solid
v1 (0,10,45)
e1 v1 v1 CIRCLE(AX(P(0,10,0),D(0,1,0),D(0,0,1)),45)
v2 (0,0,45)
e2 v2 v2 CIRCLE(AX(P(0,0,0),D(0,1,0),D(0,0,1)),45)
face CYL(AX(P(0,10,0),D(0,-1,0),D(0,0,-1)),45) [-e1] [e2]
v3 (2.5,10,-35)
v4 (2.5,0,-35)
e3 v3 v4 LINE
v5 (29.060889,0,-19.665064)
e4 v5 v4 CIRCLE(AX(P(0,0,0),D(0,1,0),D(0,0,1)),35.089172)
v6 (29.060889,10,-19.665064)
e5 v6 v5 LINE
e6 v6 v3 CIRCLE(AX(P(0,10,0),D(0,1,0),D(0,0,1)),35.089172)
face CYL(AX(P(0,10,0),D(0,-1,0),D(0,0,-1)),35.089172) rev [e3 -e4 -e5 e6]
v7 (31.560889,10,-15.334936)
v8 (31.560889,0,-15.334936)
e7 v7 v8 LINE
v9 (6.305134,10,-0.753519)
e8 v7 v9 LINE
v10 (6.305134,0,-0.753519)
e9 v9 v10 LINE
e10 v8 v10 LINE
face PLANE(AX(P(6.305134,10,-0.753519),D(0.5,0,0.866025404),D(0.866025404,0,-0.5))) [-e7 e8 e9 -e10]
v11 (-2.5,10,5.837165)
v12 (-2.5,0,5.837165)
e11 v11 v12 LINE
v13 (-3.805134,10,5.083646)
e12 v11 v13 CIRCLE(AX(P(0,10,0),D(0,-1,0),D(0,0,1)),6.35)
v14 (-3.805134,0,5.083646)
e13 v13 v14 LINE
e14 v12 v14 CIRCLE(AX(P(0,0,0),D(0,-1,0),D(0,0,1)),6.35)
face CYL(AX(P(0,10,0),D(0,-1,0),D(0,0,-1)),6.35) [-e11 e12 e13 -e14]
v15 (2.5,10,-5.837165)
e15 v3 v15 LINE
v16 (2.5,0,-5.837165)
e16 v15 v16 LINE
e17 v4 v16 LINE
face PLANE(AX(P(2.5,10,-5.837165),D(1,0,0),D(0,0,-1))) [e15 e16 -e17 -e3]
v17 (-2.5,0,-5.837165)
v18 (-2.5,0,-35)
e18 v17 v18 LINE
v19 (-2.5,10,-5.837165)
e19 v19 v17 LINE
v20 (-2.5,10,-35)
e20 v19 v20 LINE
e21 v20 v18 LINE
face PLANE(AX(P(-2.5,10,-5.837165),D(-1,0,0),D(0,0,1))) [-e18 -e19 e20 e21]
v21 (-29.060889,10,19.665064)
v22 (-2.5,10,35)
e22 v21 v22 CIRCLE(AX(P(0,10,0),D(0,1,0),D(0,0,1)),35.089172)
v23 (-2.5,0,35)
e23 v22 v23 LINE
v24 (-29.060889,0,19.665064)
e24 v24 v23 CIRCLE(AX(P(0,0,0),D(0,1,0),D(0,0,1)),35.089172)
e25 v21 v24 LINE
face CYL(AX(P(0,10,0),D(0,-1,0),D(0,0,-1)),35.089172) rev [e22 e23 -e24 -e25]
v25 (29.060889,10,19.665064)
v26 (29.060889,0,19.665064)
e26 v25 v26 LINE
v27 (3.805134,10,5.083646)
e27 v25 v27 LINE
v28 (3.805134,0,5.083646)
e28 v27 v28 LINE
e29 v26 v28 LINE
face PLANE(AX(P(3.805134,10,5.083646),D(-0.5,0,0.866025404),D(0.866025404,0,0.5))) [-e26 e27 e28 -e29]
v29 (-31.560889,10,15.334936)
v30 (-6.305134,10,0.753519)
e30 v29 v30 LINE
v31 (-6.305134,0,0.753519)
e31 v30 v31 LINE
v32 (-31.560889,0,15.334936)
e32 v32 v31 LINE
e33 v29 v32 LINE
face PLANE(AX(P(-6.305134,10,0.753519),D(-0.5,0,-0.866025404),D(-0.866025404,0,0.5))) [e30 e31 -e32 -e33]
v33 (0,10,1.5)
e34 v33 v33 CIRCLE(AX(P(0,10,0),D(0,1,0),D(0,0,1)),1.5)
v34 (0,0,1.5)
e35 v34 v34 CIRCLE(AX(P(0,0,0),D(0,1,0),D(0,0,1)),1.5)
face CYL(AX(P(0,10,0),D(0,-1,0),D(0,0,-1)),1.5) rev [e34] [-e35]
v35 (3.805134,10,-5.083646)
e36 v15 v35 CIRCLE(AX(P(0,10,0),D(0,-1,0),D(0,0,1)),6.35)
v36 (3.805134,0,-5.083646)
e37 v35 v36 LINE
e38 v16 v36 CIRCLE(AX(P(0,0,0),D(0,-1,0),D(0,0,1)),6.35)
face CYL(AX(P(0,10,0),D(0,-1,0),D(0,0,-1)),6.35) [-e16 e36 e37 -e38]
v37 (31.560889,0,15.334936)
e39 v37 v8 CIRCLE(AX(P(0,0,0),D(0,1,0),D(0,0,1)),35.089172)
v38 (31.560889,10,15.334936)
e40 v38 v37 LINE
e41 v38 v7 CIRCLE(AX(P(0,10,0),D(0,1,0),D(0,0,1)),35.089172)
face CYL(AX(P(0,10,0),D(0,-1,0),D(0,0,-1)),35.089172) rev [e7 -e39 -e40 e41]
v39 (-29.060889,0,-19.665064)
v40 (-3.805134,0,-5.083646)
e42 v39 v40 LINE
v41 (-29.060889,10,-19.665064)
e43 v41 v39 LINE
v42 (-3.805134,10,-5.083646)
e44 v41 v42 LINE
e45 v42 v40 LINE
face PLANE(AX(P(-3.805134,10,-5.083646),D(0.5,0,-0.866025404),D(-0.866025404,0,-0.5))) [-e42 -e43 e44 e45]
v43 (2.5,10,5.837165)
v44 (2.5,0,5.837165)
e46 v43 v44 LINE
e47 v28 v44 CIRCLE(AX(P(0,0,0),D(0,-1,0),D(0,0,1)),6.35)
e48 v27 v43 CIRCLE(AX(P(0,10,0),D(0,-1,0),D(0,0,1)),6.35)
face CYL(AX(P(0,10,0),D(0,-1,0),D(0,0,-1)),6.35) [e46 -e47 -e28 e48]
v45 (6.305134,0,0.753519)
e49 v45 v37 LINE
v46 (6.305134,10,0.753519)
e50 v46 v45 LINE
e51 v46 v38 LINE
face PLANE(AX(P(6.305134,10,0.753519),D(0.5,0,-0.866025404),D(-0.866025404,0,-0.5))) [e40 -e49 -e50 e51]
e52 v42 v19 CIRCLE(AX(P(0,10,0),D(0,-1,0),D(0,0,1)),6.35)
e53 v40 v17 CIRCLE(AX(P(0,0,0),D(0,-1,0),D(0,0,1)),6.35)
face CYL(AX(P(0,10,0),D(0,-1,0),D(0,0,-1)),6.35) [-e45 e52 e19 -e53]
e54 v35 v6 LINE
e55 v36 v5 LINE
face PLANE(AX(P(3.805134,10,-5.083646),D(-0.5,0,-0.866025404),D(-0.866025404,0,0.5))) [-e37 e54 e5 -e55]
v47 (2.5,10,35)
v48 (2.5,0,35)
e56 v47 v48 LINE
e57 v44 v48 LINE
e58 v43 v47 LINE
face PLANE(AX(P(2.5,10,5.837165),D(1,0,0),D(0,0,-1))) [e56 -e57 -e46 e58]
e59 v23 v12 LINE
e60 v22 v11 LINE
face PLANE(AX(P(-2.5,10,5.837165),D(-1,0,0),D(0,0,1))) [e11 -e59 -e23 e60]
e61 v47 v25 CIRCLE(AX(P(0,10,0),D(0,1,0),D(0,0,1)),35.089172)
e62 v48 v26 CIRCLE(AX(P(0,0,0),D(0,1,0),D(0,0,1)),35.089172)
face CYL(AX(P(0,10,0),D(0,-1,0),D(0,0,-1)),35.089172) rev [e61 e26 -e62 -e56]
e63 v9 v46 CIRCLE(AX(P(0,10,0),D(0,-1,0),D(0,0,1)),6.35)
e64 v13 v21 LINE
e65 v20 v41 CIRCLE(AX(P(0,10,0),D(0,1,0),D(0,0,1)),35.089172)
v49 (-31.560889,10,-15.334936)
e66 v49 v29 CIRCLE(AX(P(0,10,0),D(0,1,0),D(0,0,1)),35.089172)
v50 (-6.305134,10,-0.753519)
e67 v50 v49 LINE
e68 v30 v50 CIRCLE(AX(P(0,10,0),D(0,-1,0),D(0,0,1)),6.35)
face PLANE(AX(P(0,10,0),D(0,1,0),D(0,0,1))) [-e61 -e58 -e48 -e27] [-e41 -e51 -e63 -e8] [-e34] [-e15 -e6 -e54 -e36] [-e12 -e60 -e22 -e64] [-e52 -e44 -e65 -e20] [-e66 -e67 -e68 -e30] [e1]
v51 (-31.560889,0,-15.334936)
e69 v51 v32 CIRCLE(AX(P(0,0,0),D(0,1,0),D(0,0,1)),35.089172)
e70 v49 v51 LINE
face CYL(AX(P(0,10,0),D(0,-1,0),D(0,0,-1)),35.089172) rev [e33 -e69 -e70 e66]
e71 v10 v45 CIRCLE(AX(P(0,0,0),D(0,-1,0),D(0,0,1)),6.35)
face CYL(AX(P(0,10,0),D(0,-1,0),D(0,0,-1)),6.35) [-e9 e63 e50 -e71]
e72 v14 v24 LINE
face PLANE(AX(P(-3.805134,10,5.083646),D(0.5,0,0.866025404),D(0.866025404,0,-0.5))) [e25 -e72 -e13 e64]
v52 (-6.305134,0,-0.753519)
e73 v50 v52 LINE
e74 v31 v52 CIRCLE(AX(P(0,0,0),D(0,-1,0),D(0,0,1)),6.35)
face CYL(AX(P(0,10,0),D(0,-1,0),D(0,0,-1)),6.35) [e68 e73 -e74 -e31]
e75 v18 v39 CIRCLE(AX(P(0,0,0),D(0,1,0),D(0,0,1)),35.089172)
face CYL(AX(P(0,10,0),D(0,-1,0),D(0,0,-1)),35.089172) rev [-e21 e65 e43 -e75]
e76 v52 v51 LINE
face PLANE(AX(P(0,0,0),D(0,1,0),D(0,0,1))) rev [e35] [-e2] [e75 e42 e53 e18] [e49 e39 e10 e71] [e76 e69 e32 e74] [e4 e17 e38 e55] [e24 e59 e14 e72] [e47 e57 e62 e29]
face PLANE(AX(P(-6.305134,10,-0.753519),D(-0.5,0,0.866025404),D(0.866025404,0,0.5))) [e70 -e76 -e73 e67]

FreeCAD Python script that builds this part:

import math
import FreeCAD as App
import Part
import Sketcher

V = App.Vector
Q = App.Units.Quantity

doc = App.newDocument("Part")
body = doc.addObject("PartDesign::Body", "Body")

sketch1 = doc.addObject("Sketcher::SketchObject", "Sketch")
body.addObject(sketch1)
sketch1.AttachmentSupport = (doc.XZ_Plane, [""])
sketch1.MapMode = "FlatFace"
sketch1.addGeometry([
    Part.Circle(V(0, 0, 0), V(0, 0, 1), 45),
    Part.LineSegment(V(-2.5, -35, 0), V(-2.5, -5.8, 0)),
    Part.ArcOfCircle(Part.Circle(V(0, 0, 0), V(0, 0, 1), 6.3), math.radians(-126.82), math.radians(-113.18)),
    Part.LineSegment(V(-3.8, -5.1, 0), V(-29.1, -19.7, 0)),
    Part.ArcOfCircle(Part.Circle(V(0, 0, 0), V(0, 0, 1), 35.1), math.radians(-146), math.radians(-94)),
    Part.ArcOfCircle(Part.Circle(V(0, 0, 0), V(0, 0, 1), 6.3), math.radians(173.18), math.radians(186.82)),
    Part.LineSegment(V(-6.3, 0.8, 0), V(-31.6, 15.3, 0)),
    Part.ArcOfCircle(Part.Circle(V(0, 0, 0), V(0, 0, 1), 35.1), math.radians(154), math.radians(206)),
    Part.LineSegment(V(-31.6, -15.3, 0), V(-6.3, -0.8, 0)),
    Part.ArcOfCircle(Part.Circle(V(0, 0, 0), V(0, 0, 1), 6.3), math.radians(113.18), math.radians(126.82)),
    Part.LineSegment(V(-2.5, 5.8, 0), V(-2.5, 35, 0)),
    Part.ArcOfCircle(Part.Circle(V(0, 0, 0), V(0, 0, 1), 35.1), math.radians(94), math.radians(146)),
    Part.LineSegment(V(-29.1, 19.7, 0), V(-3.8, 5.1, 0)),
    Part.ArcOfCircle(Part.Circle(V(0, 0, 0), V(0, 0, 1), 6.3), math.radians(-66.82), math.radians(-53.18)),
    Part.LineSegment(V(2.5, -5.8, 0), V(2.5, -35, 0)),
    Part.ArcOfCircle(Part.Circle(V(0, 0, 0), V(0, 0, 1), 35.1), math.radians(-86), math.radians(-34)),
    Part.LineSegment(V(29.1, -19.7, 0), V(3.8, -5.1, 0)),
    Part.Circle(V(0, 0, 0), V(0, 0, 1), 1.5),
    Part.ArcOfCircle(Part.Circle(V(0, 0, 0), V(0, 0, 1), 6.3), math.radians(-6.82), math.radians(6.82)),
    Part.LineSegment(V(6.3, -0.8, 0), V(31.6, -15.3, 0)),
    Part.ArcOfCircle(Part.Circle(V(0, 0, 0), V(0, 0, 1), 35.1), math.radians(-26), math.radians(26)),
    Part.LineSegment(V(31.6, 15.3, 0), V(6.3, 0.8, 0)),
    Part.ArcOfCircle(Part.Circle(V(0, 0, 0), V(0, 0, 1), 6.3), math.radians(53.18), math.radians(66.82)),
    Part.LineSegment(V(3.8, 5.1, 0), V(29.1, 19.7, 0)),
    Part.ArcOfCircle(Part.Circle(V(0, 0, 0), V(0, 0, 1), 35.1), math.radians(34), math.radians(86)),
    Part.LineSegment(V(2.5, 35, 0), V(2.5, 5.8, 0)),
], False)
sketch1.addConstraint([
    Sketcher.Constraint("Coincident", 1, 2, 2, 2),
    Sketcher.Constraint("Coincident", 2, 1, 3, 1),
    Sketcher.Constraint("Coincident", 3, 2, 4, 1),
    Sketcher.Constraint("Coincident", 4, 2, 1, 1),
    Sketcher.Constraint("Coincident", 5, 1, 6, 1),
    Sketcher.Constraint("Coincident", 6, 2, 7, 1),
    Sketcher.Constraint("Coincident", 7, 2, 8, 1),
    Sketcher.Constraint("Coincident", 8, 2, 5, 2),
    Sketcher.Constraint("Coincident", 9, 1, 10, 1),
    Sketcher.Constraint("Coincident", 10, 2, 11, 1),
    Sketcher.Constraint("Coincident", 11, 2, 12, 1),
    Sketcher.Constraint("Coincident", 12, 2, 9, 2),
    Sketcher.Constraint("Coincident", 13, 1, 14, 1),
    Sketcher.Constraint("Coincident", 14, 2, 15, 1),
    Sketcher.Constraint("Coincident", 15, 2, 16, 1),
    Sketcher.Constraint("Coincident", 16, 2, 13, 2),
    Sketcher.Constraint("Coincident", 18, 1, 19, 1),
    Sketcher.Constraint("Coincident", 19, 2, 20, 1),
    Sketcher.Constraint("Coincident", 20, 2, 21, 1),
    Sketcher.Constraint("Coincident", 21, 2, 18, 2),
    Sketcher.Constraint("Coincident", 22, 1, 23, 1),
    Sketcher.Constraint("Coincident", 23, 2, 24, 1),
    Sketcher.Constraint("Coincident", 24, 2, 25, 1),
    Sketcher.Constraint("Coincident", 25, 2, 22, 2),
    Sketcher.Constraint("Vertical", 1),
    Sketcher.Constraint("Vertical", 10),
    Sketcher.Constraint("Vertical", 14),
    Sketcher.Constraint("Vertical", 25),
    Sketcher.Constraint("Coincident", 0, 3, -1, 1),
    Sketcher.Constraint("Coincident", 2, 3, -1, 1),
    Sketcher.Constraint("Coincident", 4, 3, -1, 1),
    Sketcher.Constraint("Coincident", 5, 3, -1, 1),
    Sketcher.Constraint("Coincident", 7, 3, -1, 1),
    Sketcher.Constraint("Coincident", 9, 3, -1, 1),
    Sketcher.Constraint("Coincident", 11, 3, -1, 1),
    Sketcher.Constraint("Coincident", 13, 3, -1, 1),
    Sketcher.Constraint("Coincident", 15, 3, -1, 1),
    Sketcher.Constraint("Coincident", 17, 3, -1, 1),
    Sketcher.Constraint("Coincident", 18, 3, -1, 1),
    Sketcher.Constraint("Coincident", 20, 3, -1, 1),
    Sketcher.Constraint("Coincident", 22, 3, -1, 1),
    Sketcher.Constraint("Coincident", 24, 3, -1, 1),
    Sketcher.Constraint("Equal", 2, 5),
    Sketcher.Constraint("Equal", 4, 7),
    Sketcher.Constraint("Equal", 5, 9),
    Sketcher.Constraint("Equal", 7, 11),
    Sketcher.Constraint("Equal", 9, 13),
    Sketcher.Constraint("Equal", 11, 15),
    Sketcher.Constraint("Equal", 13, 18),
    Sketcher.Constraint("Equal", 15, 20),
    Sketcher.Constraint("Equal", 18, 22),
    Sketcher.Constraint("Equal", 20, 24),
    Sketcher.Constraint("Parallel", 3, 8),
    Sketcher.Constraint("Parallel", 6, 12),
    Sketcher.Constraint("Parallel", 12, 16),
    Sketcher.Constraint("Parallel", 16, 19),
    Sketcher.Constraint("Parallel", 8, 21),
    Sketcher.Constraint("Parallel", 21, 23),
    Sketcher.Constraint("Horizontal", 1, 2, 13, 1),
    Sketcher.Constraint("Horizontal", 3, 2, 15, 2),
    Sketcher.Constraint("Horizontal", 2, 1, 16, 2),
    Sketcher.Constraint("Horizontal", 8, 2, 18, 1),
    Sketcher.Constraint("Horizontal", 6, 2, 20, 2),
    Sketcher.Constraint("Horizontal", 12, 2, 22, 1),
    Sketcher.Constraint("Horizontal", 10, 2, 24, 2),
    Sketcher.Constraint("Vertical", 6, 2, 7, 2),
    Sketcher.Constraint("Vertical", 4, 2, 9, 1),
    Sketcher.Constraint("Vertical", 3, 2, 11, 2),
    Sketcher.Constraint("Equal", 3, 6),
    Sketcher.Constraint("Diameter", 0, Q("90 mm")),
    Sketcher.Constraint("Diameter", 17, Q("3 mm")),
    Sketcher.Constraint("Angle", 3, Q("-150 deg")),
    Sketcher.Constraint("Radius", 2, Q("6.35 mm")),
    Sketcher.Constraint("DistanceY", 4, 2, -1, 1, Q("35 mm")),
    Sketcher.Constraint("DistanceX", 1, 2, 13, 1, Q("5 mm")),
    Sketcher.Constraint("DistanceX", 7, 2, 3, 2, Q("2.5 mm")),
])
pad1 = doc.addObject("PartDesign::Pad", "Pad")
body.addObject(pad1)
pad1.Profile = sketch1
pad1.Length = 10
pad1.Reversed = True

doc.recompute()
